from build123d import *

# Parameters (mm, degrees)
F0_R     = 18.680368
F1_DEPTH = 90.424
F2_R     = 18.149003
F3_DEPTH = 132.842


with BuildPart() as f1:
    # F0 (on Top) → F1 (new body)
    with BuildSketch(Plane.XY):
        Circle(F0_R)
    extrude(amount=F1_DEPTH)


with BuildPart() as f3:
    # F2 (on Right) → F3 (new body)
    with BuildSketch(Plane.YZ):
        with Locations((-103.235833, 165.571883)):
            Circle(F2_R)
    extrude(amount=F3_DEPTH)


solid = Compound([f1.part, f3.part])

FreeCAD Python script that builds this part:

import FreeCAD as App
import Part
import Sketcher

V = App.Vector
Q = App.Units.Quantity

doc = App.newDocument("Part")
body = doc.addObject("PartDesign::Body", "Body")

# Sketch on XY plane
sketch1 = body.newObject("Sketcher::SketchObject", "Sketch")
sketch1.AttachmentSupport = (doc.getObject("XY_Plane"), [""])
sketch1.MapMode = "FlatFace"
sketch1.addGeometry(Part.Circle(V(0, 0, 0), V(0, 0, 1), 19), False)
sketch1.addConstraint([
    Sketcher.Constraint("Coincident", 0, 3, -1, 1),
    Sketcher.Constraint("Diameter", 0, 37.360736),
])
pad1 = body.newObject("PartDesign::Pad", "Pad")
pad1.Profile = sketch1
pad1.Length = Q("3.56 in")
body2 = doc.addObject("PartDesign::Body", "Body001")

# Sketch on YZ plane
sketch2 = body2.newObject("Sketcher::SketchObject", "Sketch001")
sketch2.AttachmentSupport = (doc.getObject("YZ_Plane001"), [""])
sketch2.MapMode = "FlatFace"
sketch2.addGeometry(Part.Circle(V(-103, 166, 0), V(0, 0, 1), 18), False)
sketch2.addConstraint([
    Sketcher.Constraint("Diameter", 0, 36.298006),
    Sketcher.Constraint("DistanceX", 0, 3, -1, 1, 103.235833),
    Sketcher.Constraint("DistanceY", -1, 1, 0, 3, 165.571883),
])
pad2 = body2.newObject("PartDesign::Pad", "Pad001")
pad2.Profile = sketch2
pad2.Length = Q("5.23 in")

doc.recompute()
